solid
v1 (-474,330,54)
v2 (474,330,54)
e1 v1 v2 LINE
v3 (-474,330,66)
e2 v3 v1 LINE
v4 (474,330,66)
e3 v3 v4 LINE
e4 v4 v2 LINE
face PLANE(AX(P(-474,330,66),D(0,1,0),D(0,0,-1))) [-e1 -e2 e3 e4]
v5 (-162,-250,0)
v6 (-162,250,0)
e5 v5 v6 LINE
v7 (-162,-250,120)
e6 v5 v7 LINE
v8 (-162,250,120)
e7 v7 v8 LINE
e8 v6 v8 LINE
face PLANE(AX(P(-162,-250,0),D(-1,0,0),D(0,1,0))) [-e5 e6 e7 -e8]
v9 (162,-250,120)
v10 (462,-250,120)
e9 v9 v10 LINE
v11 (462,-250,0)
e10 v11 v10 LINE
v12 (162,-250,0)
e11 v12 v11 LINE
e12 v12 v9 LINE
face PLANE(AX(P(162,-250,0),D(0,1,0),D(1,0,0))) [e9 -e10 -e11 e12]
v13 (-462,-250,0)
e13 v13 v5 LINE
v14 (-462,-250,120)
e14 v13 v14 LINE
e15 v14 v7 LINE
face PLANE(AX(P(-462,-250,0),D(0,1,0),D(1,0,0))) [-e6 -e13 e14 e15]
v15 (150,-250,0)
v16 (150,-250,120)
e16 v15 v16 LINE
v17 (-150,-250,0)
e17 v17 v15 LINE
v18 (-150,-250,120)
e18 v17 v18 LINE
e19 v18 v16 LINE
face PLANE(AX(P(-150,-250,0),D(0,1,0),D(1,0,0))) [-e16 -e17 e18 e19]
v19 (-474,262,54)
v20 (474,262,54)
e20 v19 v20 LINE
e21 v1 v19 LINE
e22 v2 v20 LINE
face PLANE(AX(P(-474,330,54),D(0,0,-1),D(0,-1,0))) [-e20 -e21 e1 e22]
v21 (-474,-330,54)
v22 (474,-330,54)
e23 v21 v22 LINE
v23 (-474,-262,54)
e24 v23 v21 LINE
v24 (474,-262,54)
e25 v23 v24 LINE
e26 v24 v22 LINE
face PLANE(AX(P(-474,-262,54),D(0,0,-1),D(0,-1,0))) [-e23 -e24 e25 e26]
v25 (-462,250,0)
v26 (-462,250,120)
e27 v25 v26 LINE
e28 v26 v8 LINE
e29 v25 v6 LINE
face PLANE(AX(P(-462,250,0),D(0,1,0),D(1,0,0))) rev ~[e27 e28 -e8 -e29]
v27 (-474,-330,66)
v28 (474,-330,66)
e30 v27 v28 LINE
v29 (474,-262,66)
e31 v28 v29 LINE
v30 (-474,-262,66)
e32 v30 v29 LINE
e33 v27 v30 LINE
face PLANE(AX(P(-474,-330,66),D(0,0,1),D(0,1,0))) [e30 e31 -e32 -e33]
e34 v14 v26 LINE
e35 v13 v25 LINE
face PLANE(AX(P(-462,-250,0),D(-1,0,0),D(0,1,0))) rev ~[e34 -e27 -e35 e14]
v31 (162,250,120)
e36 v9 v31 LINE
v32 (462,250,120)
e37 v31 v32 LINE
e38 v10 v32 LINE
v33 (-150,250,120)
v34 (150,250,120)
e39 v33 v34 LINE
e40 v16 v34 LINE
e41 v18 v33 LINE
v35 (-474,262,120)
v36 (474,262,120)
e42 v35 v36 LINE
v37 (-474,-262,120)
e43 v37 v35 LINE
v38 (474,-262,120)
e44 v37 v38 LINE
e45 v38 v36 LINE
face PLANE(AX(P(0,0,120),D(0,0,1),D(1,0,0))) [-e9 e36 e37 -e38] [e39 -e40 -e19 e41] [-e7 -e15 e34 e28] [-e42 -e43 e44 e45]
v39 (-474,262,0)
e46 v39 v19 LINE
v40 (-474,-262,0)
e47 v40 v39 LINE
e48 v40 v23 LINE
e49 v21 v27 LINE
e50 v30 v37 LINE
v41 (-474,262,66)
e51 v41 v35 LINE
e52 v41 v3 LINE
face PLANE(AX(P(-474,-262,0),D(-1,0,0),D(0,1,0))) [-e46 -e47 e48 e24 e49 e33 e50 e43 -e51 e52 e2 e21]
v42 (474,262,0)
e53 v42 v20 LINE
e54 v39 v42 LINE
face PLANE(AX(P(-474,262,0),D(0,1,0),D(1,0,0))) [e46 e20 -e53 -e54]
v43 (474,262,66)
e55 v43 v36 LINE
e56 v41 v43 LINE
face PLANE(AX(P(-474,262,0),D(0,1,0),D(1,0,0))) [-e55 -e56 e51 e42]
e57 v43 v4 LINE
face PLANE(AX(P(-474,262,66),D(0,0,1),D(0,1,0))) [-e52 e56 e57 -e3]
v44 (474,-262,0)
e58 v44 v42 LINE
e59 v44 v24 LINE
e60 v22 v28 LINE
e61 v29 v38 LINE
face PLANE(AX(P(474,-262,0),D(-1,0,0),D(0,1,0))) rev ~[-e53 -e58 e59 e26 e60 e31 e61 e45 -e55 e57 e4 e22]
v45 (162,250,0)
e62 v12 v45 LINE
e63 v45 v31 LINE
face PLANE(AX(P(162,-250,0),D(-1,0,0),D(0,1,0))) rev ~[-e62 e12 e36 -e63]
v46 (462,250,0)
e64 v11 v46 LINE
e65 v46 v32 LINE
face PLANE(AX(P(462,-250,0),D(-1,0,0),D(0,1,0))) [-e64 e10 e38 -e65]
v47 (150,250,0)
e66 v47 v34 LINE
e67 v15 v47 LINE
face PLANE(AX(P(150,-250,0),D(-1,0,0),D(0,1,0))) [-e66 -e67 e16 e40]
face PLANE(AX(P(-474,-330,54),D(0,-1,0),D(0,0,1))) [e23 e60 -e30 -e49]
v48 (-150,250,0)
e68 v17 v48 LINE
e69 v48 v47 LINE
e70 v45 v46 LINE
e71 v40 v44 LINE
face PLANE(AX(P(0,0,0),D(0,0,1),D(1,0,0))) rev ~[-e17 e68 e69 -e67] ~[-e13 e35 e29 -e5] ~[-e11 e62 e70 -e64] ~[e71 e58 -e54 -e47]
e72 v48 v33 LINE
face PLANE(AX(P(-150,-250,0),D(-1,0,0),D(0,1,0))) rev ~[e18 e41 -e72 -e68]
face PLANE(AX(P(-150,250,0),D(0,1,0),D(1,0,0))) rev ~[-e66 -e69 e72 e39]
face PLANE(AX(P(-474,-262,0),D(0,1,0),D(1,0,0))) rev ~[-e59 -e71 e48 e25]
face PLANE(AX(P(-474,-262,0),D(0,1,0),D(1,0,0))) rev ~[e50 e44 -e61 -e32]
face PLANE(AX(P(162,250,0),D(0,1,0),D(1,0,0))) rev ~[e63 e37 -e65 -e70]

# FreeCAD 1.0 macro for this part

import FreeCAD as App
import Part
import Sketcher
Q = App.Units.Quantity

doc = App.newDocument("Part")
params = doc.addObject("Spreadsheet::Sheet", "Params")
for row, (alias, value) in enumerate([
    ("sketch1_width", "948 mm"),
    ("sketch1_width2", "300 mm"),
    ("sketch1_height", "524 mm"),
    ("sketch1_height2", "500 mm"),
    ("pad1_length", "120 mm"),
    ("sketch2_width", "68 mm"),
    ("sketch2_height", "12 mm"),
], start=1):
    params.set(f"A{row}", alias)
    params.set(f"B{row}", "=" + value)
    params.setAlias(f"B{row}", alias)

body = doc.addObject("PartDesign::Body", "Body")

# Sketch on XY plane
sketch1 = body.newObject("Sketcher::SketchObject", "Sketch")
sketch1.AttachmentSupport = (doc.getObject("XY_Plane"), [""])
sketch1.MapMode = "FlatFace"
sketch1.addGeometry([
    Part.LineSegment(App.Vector(-474, 262, 0), App.Vector(-474, -262, 0)),  # 0
    Part.LineSegment(App.Vector(-474, -262, 0), App.Vector(474, -262, 0)),  # 1
    Part.LineSegment(App.Vector(474, -262, 0), App.Vector(474, 262, 0)),  # 2
    Part.LineSegment(App.Vector(474, 262, 0), App.Vector(-474, 262, 0)),  # 3
    Part.LineSegment(App.Vector(-162, -250, 0), App.Vector(-462, -250, 0)),  # 4
    Part.LineSegment(App.Vector(-462, -250, 0), App.Vector(-462, 250, 0)),  # 5
    Part.LineSegment(App.Vector(-462, 250, 0), App.Vector(-162, 250, 0)),  # 6
    Part.LineSegment(App.Vector(-162, 250, 0), App.Vector(-162, -250, 0)),  # 7
    Part.LineSegment(App.Vector(150, -250, 0), App.Vector(-150, -250, 0)),  # 8
    Part.LineSegment(App.Vector(-150, -250, 0), App.Vector(-150, 250, 0)),  # 9
    Part.LineSegment(App.Vector(-150, 250, 0), App.Vector(150, 250, 0)),  # 10
    Part.LineSegment(App.Vector(150, 250, 0), App.Vector(150, -250, 0)),  # 11
    Part.LineSegment(App.Vector(462, -250, 0), App.Vector(162, -250, 0)),  # 12
    Part.LineSegment(App.Vector(162, -250, 0), App.Vector(162, 250, 0)),  # 13
    Part.LineSegment(App.Vector(162, 250, 0), App.Vector(462, 250, 0)),  # 14
    Part.LineSegment(App.Vector(462, 250, 0), App.Vector(462, -250, 0)),  # 15
], False)
sketch1.addConstraint([
    Sketcher.Constraint("Coincident", 0, 2, 1, 1),
    Sketcher.Constraint("Coincident", 1, 2, 2, 1),
    Sketcher.Constraint("Coincident", 2, 2, 3, 1),
    Sketcher.Constraint("Coincident", 3, 2, 0, 1),
    Sketcher.Constraint("Coincident", 4, 2, 5, 1),
    Sketcher.Constraint("Coincident", 5, 2, 6, 1),
    Sketcher.Constraint("Coincident", 6, 2, 7, 1),
    Sketcher.Constraint("Coincident", 7, 2, 4, 1),
    Sketcher.Constraint("Coincident", 8, 2, 9, 1),
    Sketcher.Constraint("Coincident", 9, 2, 10, 1),
    Sketcher.Constraint("Coincident", 10, 2, 11, 1),
    Sketcher.Constraint("Coincident", 11, 2, 8, 1),
    Sketcher.Constraint("Coincident", 12, 2, 13, 1),
    Sketcher.Constraint("Coincident", 13, 2, 14, 1),
    Sketcher.Constraint("Coincident", 14, 2, 15, 1),
    Sketcher.Constraint("Coincident", 15, 2, 12, 1),
    Sketcher.Constraint("Vertical", 0),
    Sketcher.Constraint("Horizontal", 1),
    Sketcher.Constraint("Vertical", 2),
    Sketcher.Constraint("Horizontal", 3),
    Sketcher.Constraint("Horizontal", 4),
    Sketcher.Constraint("Vertical", 5),
    Sketcher.Constraint("Horizontal", 6),
    Sketcher.Constraint("Vertical", 7),
    Sketcher.Constraint("Horizontal", 8),
    Sketcher.Constraint("Vertical", 9),
    Sketcher.Constraint("Horizontal", 10),
    Sketcher.Constraint("Vertical", 11),
    Sketcher.Constraint("Horizontal", 12),
    Sketcher.Constraint("Vertical", 13),
    Sketcher.Constraint("Horizontal", 14),
    Sketcher.Constraint("Vertical", 15),
    Sketcher.Constraint("Symmetric", 0, 2, 2, 2, -1, 1),
    Sketcher.Constraint("Symmetric", 8, 2, 10, 2, -1, 1),
    Sketcher.Constraint("Symmetric", 6, 2, 12, 2, -1, 1),
    Sketcher.Constraint("Symmetric", 4, 2, 14, 2, -1, 1),
    Sketcher.Constraint("Horizontal", 7, 2, 8, 2),
    Sketcher.Constraint("Horizontal", 6, 2, 9, 2),
    Sketcher.Constraint("Equal", 6, 8),
    Sketcher.Constraint("DistanceX", 1, 1, 1, 2, Q("948 mm")),
    Sketcher.Constraint("DistanceX", 4, 2, 4, 1, Q("300 mm")),
    Sketcher.Constraint("DistanceY", 0, 2, 0, 1, Q("524 mm")),
    Sketcher.Constraint("DistanceY", 5, 1, 5, 2, Q("500 mm")),
    Sketcher.Constraint("DistanceX", 4, 2, -1, 1, Q("462 mm")),
])
sketch1.setExpression("Constraints[39]", "Params.sketch1_width")
sketch1.setExpression("Constraints[40]", "Params.sketch1_width2")
sketch1.setExpression("Constraints[41]", "Params.sketch1_height")
sketch1.setExpression("Constraints[42]", "Params.sketch1_height2")
pad1 = body.newObject("PartDesign::Pad", "Pad")
pad1.Profile = sketch1
pad1.setExpression("Length", "Params.pad1_length")

# Sketch on YZ plane
sketch2 = body.newObject("Sketcher::SketchObject", "Sketch001")
sketch2.AttachmentSupport = (doc.getObject("YZ_Plane"), [""])
sketch2.MapMode = "FlatFace"
sketch2.AttachmentOffset = App.Placement(App.Vector(0, 0, -474), App.Rotation())
sketch2.addGeometry([
    Part.LineSegment(App.Vector(330, 54, 0), App.Vector(262, 54, 0)),  # 0
    Part.LineSegment(App.Vector(262, 54, 0), App.Vector(262, 66, 0)),  # 1
    Part.LineSegment(App.Vector(262, 66, 0), App.Vector(330, 66, 0)),  # 2
    Part.LineSegment(App.Vector(330, 66, 0), App.Vector(330, 54, 0)),  # 3
    Part.LineSegment(App.Vector(-262, 66, 0), App.Vector(-262, 54, 0)),  # 4
    Part.LineSegment(App.Vector(-262, 54, 0), App.Vector(-330, 54, 0)),  # 5
    Part.LineSegment(App.Vector(-330, 54, 0), App.Vector(-330, 66, 0)),  # 6
    Part.LineSegment(App.Vector(-330, 66, 0), App.Vector(-262, 66, 0)),  # 7
], False)
sketch2.addConstraint([
    Sketcher.Constraint("Coincident", 0, 2, 1, 1),
    Sketcher.Constraint("Coincident", 1, 2, 2, 1),
    Sketcher.Constraint("Coincident", 2, 2, 3, 1),
    Sketcher.Constraint("Coincident", 3, 2, 0, 1),
    Sketcher.Constraint("Coincident", 4, 2, 5, 1),
    Sketcher.Constraint("Coincident", 5, 2, 6, 1),
    Sketcher.Constraint("Coincident", 6, 2, 7, 1),
    Sketcher.Constraint("Coincident", 7, 2, 4, 1),
    Sketcher.Constraint("Horizontal", 0),
    Sketcher.Constraint("Vertical", 1),
    Sketcher.Constraint("Horizontal", 2),
    Sketcher.Constraint("Vertical", 3),
    Sketcher.Constraint("Vertical", 4),
    Sketcher.Constraint("Horizontal", 5),
    Sketcher.Constraint("Vertical", 6),
    Sketcher.Constraint("Horizontal", 7),
    Sketcher.Constraint("Symmetric", 0, 2, 4, 2, -2),
    Sketcher.Constraint("Symmetric", 2, 2, 6, 2, -2),
    Sketcher.Constraint("DistanceX", 0, 2, 0, 1, Q("68 mm")),
    Sketcher.Constraint("DistanceY", 1, 1, 1, 2, Q("12 mm")),
    Sketcher.Constraint("DistanceX", -1, 1, 0, 2, Q("262 mm")),
    Sketcher.Constraint("DistanceY", -1, 1, 0, 2, Q("54 mm")),
])
sketch2.setExpression("Constraints[18]", "Params.sketch2_width")
sketch2.setExpression("Constraints[19]", "Params.sketch2_height")
pad2 = body.newObject("PartDesign::Pad", "Pad001")
pad2.Profile = sketch2
pad2.Type = "UpToLast"

doc.recompute()
